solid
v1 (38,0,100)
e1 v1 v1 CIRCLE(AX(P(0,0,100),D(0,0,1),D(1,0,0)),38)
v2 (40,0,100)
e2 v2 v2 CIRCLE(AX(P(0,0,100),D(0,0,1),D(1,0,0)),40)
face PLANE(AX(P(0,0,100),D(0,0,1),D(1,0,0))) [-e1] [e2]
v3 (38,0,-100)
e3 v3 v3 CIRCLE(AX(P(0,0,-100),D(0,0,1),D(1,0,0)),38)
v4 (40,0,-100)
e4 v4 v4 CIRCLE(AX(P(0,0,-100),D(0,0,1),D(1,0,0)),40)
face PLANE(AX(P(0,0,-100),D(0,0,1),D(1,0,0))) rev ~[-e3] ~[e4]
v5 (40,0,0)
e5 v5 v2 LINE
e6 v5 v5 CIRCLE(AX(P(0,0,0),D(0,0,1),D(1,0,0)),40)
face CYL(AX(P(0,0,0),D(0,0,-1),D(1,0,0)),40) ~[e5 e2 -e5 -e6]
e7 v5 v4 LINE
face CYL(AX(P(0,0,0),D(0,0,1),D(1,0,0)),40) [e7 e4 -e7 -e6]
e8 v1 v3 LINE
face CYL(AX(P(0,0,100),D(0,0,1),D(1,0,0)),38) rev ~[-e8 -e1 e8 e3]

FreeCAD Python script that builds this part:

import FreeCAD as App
import Part
import Sketcher

V = App.Vector

doc = App.newDocument("Part")
params = doc.addObject("Spreadsheet::Sheet", "Params")
for row, (alias, value) in enumerate([
    ("sketch1_diameter", "80 mm"),
    ("pad1_length", "200 mm"),
    ("sketch2_diameter", "76 mm"),
    ("pocket1_length", "230.5147 mm"),
], start=1):
    params.set(f"A{row}", alias)
    params.set(f"B{row}", "=" + value)
    params.setAlias(f"B{row}", alias)

body = doc.addObject("PartDesign::Body", "Body")

# Sketch on XY plane
sketch1 = body.newObject("Sketcher::SketchObject", "Sketch")
sketch1.AttachmentSupport = (doc.getObject("XY_Plane"), [""])
sketch1.MapMode = "FlatFace"
sketch1.addGeometry(Part.Circle(V(0, 0, 0), V(0, 0, 1), 40), False)
sketch1.addConstraint([
    Sketcher.Constraint("Coincident", 0, 3, -1, 1),
    Sketcher.Constraint("Diameter", 0, 80.0),
])
sketch1.setExpression("Constraints[1]", "Params.sketch1_diameter")
pad1 = body.newObject("PartDesign::Pad", "Pad")
pad1.Profile = sketch1
pad1.setExpression("Length", "Params.pad1_length")
pad1.Midplane = True

# Sketch on XY plane
sketch2 = body.newObject("Sketcher::SketchObject", "Sketch001")
sketch2.AttachmentSupport = (doc.getObject("XY_Plane"), [""])
sketch2.MapMode = "FlatFace"
sketch2.AttachmentOffset = App.Placement(V(0, 0, 100), App.Rotation())
sketch2.addGeometry(Part.Circle(V(0, 0, 0), V(0, 0, 1), 38), False)
sketch2.addConstraint([
    Sketcher.Constraint("Coincident", 0, 3, -1, 1),
    Sketcher.Constraint("Diameter", 0, 76.0),
])
sketch2.setExpression("Constraints[1]", "Params.sketch2_diameter")
pocket1 = body.newObject("PartDesign::Pocket", "Pocket")
pocket1.Profile = sketch2
pocket1.setExpression("Length", "Params.pocket1_length")

doc.recompute()
